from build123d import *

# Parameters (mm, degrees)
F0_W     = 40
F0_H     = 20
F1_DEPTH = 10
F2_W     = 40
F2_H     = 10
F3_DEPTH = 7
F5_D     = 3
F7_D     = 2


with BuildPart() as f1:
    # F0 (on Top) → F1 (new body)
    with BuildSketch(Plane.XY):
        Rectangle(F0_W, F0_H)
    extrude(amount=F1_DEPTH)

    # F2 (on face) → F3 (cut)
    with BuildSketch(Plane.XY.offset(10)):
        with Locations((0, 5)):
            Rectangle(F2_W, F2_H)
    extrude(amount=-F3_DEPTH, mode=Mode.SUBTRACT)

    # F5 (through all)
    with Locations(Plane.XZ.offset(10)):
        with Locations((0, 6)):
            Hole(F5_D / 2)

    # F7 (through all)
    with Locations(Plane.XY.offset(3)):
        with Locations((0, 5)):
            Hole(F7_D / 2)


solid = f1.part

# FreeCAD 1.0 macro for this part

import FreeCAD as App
import Part
import Sketcher

V = App.Vector


def add_polygon(sketch, points):
    """Adds a closed chain of lines whose ends are joined by coincident constraints."""
    first, n = sketch.GeometryCount, len(points)
    for a, b in zip(points, points[1:] + points[:1]):
        sketch.addGeometry(Part.LineSegment(App.Vector(*a, 0), App.Vector(*b, 0)), False)
    for i in range(n):
        sketch.addConstraint(Sketcher.Constraint("Coincident", first + i, 2, first + (i + 1) % n, 1))

doc = App.newDocument("Part")
body = doc.addObject("PartDesign::Body", "Body")

sketch1 = body.newObject("Sketcher::SketchObject", "Sketch")
sketch1.AttachmentSupport = (doc.getObject("XY_Plane"), [""])
sketch1.MapMode = "FlatFace"
add_polygon(sketch1, [(-20, 10), (-20, -10), (20, -10), (20, 10)])
sketch1.addConstraint(Sketcher.Constraint("Vertical", 0))
sketch1.addConstraint(Sketcher.Constraint("Horizontal", 1))
sketch1.addConstraint(Sketcher.Constraint("Vertical", 2))
sketch1.addConstraint(Sketcher.Constraint("Horizontal", 3))
sketch1.addConstraint(Sketcher.Constraint("Symmetric", 0, 2, 2, 2, -1, 1))
sketch1.addConstraint(Sketcher.Constraint("DistanceX", 1, 1, 1, 2, 40.0))
sketch1.addConstraint(Sketcher.Constraint("DistanceY", 0, 2, 0, 1, 20.0))
pad1 = body.newObject("PartDesign::Pad", "Pad")
pad1.Profile = sketch1
pad1.Length = 10

sketch2 = body.newObject("Sketcher::SketchObject", "Sketch001")
sketch2.AttachmentSupport = (doc.getObject("XY_Plane"), [""])
sketch2.MapMode = "FlatFace"
sketch2.AttachmentOffset = App.Placement(V(0, 0, 10), App.Rotation())
add_polygon(sketch2, [(-20, 10), (-20, 0), (20, 0), (20, 10)])
sketch2.addConstraint(Sketcher.Constraint("Vertical", 0))
sketch2.addConstraint(Sketcher.Constraint("Horizontal", 1))
sketch2.addConstraint(Sketcher.Constraint("Vertical", 2))
sketch2.addConstraint(Sketcher.Constraint("Horizontal", 3))
sketch2.addConstraint(Sketcher.Constraint("Symmetric", 0, 2, 1, 2, -1, 1))
sketch2.addConstraint(Sketcher.Constraint("DistanceX", 1, 1, 1, 2, 40.0))
sketch2.addConstraint(Sketcher.Constraint("DistanceY", 0, 2, 0, 1, 10.0))
pocket1 = body.newObject("PartDesign::Pocket", "Pocket")
pocket1.Profile = sketch2
pocket1.Length = 7

sketch3 = body.newObject("Sketcher::SketchObject", "Sketch002")
sketch3.AttachmentSupport = (doc.getObject("XZ_Plane"), [""])
sketch3.MapMode = "FlatFace"
sketch3.AttachmentOffset = App.Placement(V(0, 0, 10), App.Rotation())
sketch3.addGeometry(Part.Circle(V(0, 6, 0), V(0, 0, 1), 1.5), False)
sketch3.addConstraint(Sketcher.Constraint("PointOnObject", 0, 3, -2))
sketch3.addConstraint(Sketcher.Constraint("Diameter", 0, 3.0))
sketch3.addConstraint(Sketcher.Constraint("DistanceY", -1, 1, 0, 3, 6.0))
doc.recompute()
hole = body.newObject("PartDesign::Hole", "Hole")
hole.Profile = sketch3
hole.ThreadType = "None"
hole.Diameter = 3
hole.DepthType = "ThroughAll"

sketch4 = body.newObject("Sketcher::SketchObject", "Sketch003")
sketch4.AttachmentSupport = (doc.getObject("XY_Plane"), [""])
sketch4.MapMode = "FlatFace"
sketch4.AttachmentOffset = App.Placement(V(0, 0, 3), App.Rotation())
sketch4.addGeometry(Part.Circle(V(0, 5, 0), V(0, 0, 1), 1), False)
sketch4.addConstraint(Sketcher.Constraint("PointOnObject", 0, 3, -2))
sketch4.addConstraint(Sketcher.Constraint("Diameter", 0, 2.0))
sketch4.addConstraint(Sketcher.Constraint("DistanceY", -1, 1, 0, 3, 5.0))
doc.recompute()
hole2 = body.newObject("PartDesign::Hole", "Hole001")
hole2.Profile = sketch4
hole2.ThreadType = "None"
hole2.Diameter = 2
hole2.DepthType = "ThroughAll"

doc.recompute()
